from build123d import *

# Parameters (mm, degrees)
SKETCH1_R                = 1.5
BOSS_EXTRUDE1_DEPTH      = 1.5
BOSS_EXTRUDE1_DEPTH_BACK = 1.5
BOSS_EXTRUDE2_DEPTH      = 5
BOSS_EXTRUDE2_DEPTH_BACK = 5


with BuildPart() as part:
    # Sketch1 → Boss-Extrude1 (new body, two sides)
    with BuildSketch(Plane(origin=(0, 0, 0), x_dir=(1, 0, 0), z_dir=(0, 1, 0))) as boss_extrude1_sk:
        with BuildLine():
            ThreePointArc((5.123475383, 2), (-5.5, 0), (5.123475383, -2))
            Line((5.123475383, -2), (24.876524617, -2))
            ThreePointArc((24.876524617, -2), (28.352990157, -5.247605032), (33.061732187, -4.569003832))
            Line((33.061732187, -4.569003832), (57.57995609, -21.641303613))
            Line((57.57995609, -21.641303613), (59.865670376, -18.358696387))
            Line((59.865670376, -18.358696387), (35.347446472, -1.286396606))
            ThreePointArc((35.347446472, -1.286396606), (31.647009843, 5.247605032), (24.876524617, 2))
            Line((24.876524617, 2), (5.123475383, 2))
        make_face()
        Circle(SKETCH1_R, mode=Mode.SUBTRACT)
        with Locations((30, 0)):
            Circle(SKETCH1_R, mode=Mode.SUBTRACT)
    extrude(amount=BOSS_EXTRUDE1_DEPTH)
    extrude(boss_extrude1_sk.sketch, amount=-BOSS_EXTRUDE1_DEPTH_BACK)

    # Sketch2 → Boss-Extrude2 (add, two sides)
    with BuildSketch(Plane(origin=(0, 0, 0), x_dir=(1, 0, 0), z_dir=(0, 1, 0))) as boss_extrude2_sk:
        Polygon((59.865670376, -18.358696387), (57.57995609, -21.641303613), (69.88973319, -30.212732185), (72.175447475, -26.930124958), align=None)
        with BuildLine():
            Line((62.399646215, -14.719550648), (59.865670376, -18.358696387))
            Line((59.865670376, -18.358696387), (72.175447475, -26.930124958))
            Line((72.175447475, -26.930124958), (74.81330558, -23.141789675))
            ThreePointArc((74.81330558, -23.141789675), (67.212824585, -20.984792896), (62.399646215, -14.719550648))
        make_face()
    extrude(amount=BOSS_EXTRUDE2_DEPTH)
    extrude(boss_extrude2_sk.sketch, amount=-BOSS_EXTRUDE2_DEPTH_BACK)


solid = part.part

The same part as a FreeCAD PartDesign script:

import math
import FreeCAD as App
import Part
import Sketcher
from FreeCAD import Vector
Q = App.Units.Quantity

doc = App.newDocument("Part")
params = doc.addObject("Spreadsheet::Sheet", "Params")
for row, (alias, value) in enumerate([
    ("sketch1_diameter", "3 mm"),
    ("sketch1_radius", "5.5 mm"),
    ("sketch1_length", "4 mm"),
    ("pad1_length", "1.5 mm"),
    ("pad1_length2", "1.5 mm"),
    ("sketch2_length", "4 mm"),
    ("sketch2_length2", "15 mm"),
    ("pad2_length", "5 mm"),
    ("pad2_length2", "5 mm"),
], start=1):
    params.set(f"A{row}", alias)
    params.set(f"B{row}", "=" + value)
    params.setAlias(f"B{row}", alias)

body = doc.addObject("PartDesign::Body", "Body")

# Sketch on XZ plane
sketch1 = body.newObject("Sketcher::SketchObject", "Sketch")
sketch1.AttachmentSupport = (doc.getObject("XZ_Plane"), [""])
sketch1.MapMode = "FlatFace"
sketch1.addGeometry(Part.ArcOfCircle(Part.Circle(Vector(0, 0, 0), Vector(0, 0, 1), 5.5), math.radians(21), math.radians(339)), False)
sketch1.addGeometry(Part.LineSegment(Vector(5.1, 2, 0), Vector(24.9, 2, 0)), False)
sketch1.addGeometry(Part.ArcOfCircle(Part.Circle(Vector(30, 0, 0), Vector(0, 0, 1), 5.5), math.radians(56), math.radians(159)), False)
sketch1.addGeometry(Part.LineSegment(Vector(33.1, 4.6, 0), Vector(57.6, 21.6, 0)), False)
sketch1.addGeometry(Part.LineSegment(Vector(57.6, 21.6, 0), Vector(59.9, 18.4, 0)), False)
sketch1.addGeometry(Part.LineSegment(Vector(59.9, 18.4, 0), Vector(35.3, 1.3, 0)), False)
sketch1.addGeometry(Part.ArcOfCircle(Part.Circle(Vector(30, 0, 0), Vector(0, 0, 1), 5.5), math.radians(-159), math.radians(14)), False)
sketch1.addGeometry(Part.LineSegment(Vector(24.9, -2, 0), Vector(5.1, -2, 0)), False)
sketch1.addGeometry(Part.Circle(Vector(0, 0, 0), Vector(0, 0, 1), 1.5), False)
sketch1.addGeometry(Part.Circle(Vector(30, 0, 0), Vector(0, 0, 1), 1.5), False)
sketch1.addConstraint(Sketcher.Constraint("Coincident", 0, 1, 1, 1))
sketch1.addConstraint(Sketcher.Constraint("Coincident", 1, 2, 2, 2))
sketch1.addConstraint(Sketcher.Constraint("Coincident", 2, 1, 3, 1))
sketch1.addConstraint(Sketcher.Constraint("Coincident", 3, 2, 4, 1))
sketch1.addConstraint(Sketcher.Constraint("Coincident", 4, 2, 5, 1))
sketch1.addConstraint(Sketcher.Constraint("Coincident", 5, 2, 6, 2))
sketch1.addConstraint(Sketcher.Constraint("Coincident", 6, 1, 7, 1))
sketch1.addConstraint(Sketcher.Constraint("Coincident", 7, 2, 0, 2))
sketch1.addConstraint(Sketcher.Constraint("Horizontal", 1))
sketch1.addConstraint(Sketcher.Constraint("Horizontal", 7))
sketch1.addConstraint(Sketcher.Constraint("Coincident", 0, 3, -1, 1))
sketch1.addConstraint(Sketcher.Constraint("Coincident", 8, 3, -1, 1))
sketch1.addConstraint(Sketcher.Constraint("Coincident", 6, 3, 2, 3))
sketch1.addConstraint(Sketcher.Constraint("Coincident", 9, 3, 2, 3))
sketch1.addConstraint(Sketcher.Constraint("Equal", 0, 2))
sketch1.addConstraint(Sketcher.Constraint("Equal", 2, 6))
sketch1.addConstraint(Sketcher.Constraint("Equal", 8, 9))
sketch1.addConstraint(Sketcher.Constraint("Symmetric", 1, 2, 6, 1, -1))
sketch1.addConstraint(Sketcher.Constraint("Perpendicular", 3, 4))
sketch1.addConstraint(Sketcher.Constraint("Perpendicular", 4, 5))
sketch1.addConstraint(Sketcher.Constraint("Equal", 3, 5))
sketch1.addConstraint(Sketcher.Constraint("Diameter", 8, Q("3 mm")))
sketch1.addConstraint(Sketcher.Constraint("Radius", 0, Q("5.5 mm")))
sketch1.addConstraint(Sketcher.Constraint("Distance", 4, Q("4 mm")))
sketch1.addConstraint(Sketcher.Constraint("DistanceX", -1, 1, 2, 3, Q("30 mm")))
sketch1.addConstraint(Sketcher.Constraint("DistanceY", -1, 1, 0, 1, Q("2 mm")))
sketch1.addConstraint(Sketcher.Constraint("DistanceY", 2, 1, 3, 2, Q("17.0723 mm")))
sketch1.addConstraint(Sketcher.Constraint("DistanceX", -1, 1, 4, 2, Q("59.86567 mm")))
sketch1.setExpression("Constraints[21]", "Params.sketch1_diameter")
sketch1.setExpression("Constraints[22]", "Params.sketch1_radius")
sketch1.setExpression("Constraints[23]", "Params.sketch1_length")
pad1 = body.newObject("PartDesign::Pad", "Pad")
pad1.Profile = sketch1
pad1.Type = "TwoLengths"
pad1.setExpression("Length", "Params.pad1_length")
pad1.setExpression("Length2", "Params.pad1_length2")
pad1.Reversed = True

# Sketch on XZ plane
sketch2 = body.newObject("Sketcher::SketchObject", "Sketch001")
sketch2.AttachmentSupport = (doc.getObject("XZ_Plane"), [""])
sketch2.MapMode = "FlatFace"
sketch2.addGeometry(Part.LineSegment(Vector(59.9, 18.4, 0), Vector(57.6, 21.6, 0)), False)
sketch2.addGeometry(Part.LineSegment(Vector(57.6, 21.6, 0), Vector(69.9, 30.2, 0)), False)
sketch2.addGeometry(Part.LineSegment(Vector(69.9, 30.2, 0), Vector(72.2, 26.9, 0)), False)
sketch2.addGeometry(Part.LineSegment(Vector(72.2, 26.9, 0), Vector(74.8, 23.1, 0)), False)
sketch2.addGeometry(Part.ArcOfCircle(Part.Circle(Vector(74.3, 10.6, 0), Vector(0, 0, 1), 12.6), math.radians(88), math.radians(161)), False)
sketch2.addGeometry(Part.LineSegment(Vector(62.4, 14.7, 0), Vector(59.9, 18.4, 0)), False)
sketch2.addConstraint(Sketcher.Constraint("Coincident", 0, 2, 1, 1))
sketch2.addConstraint(Sketcher.Constraint("Coincident", 1, 2, 2, 1))
sketch2.addConstraint(Sketcher.Constraint("Coincident", 2, 2, 3, 1))
sketch2.addConstraint(Sketcher.Constraint("Coincident", 3, 2, 4, 1))
sketch2.addConstraint(Sketcher.Constraint("Coincident", 4, 2, 5, 1))
sketch2.addConstraint(Sketcher.Constraint("Coincident", 5, 2, 0, 1))
sketch2.addConstraint(Sketcher.Constraint("Perpendicular", 0, 1))
sketch2.addConstraint(Sketcher.Constraint("Perpendicular", 1, 2))
sketch2.addConstraint(Sketcher.Constraint("Parallel", 2, 3))
sketch2.addConstraint(Sketcher.Constraint("Parallel", 3, 5))
sketch2.addConstraint(Sketcher.Constraint("Equal", 0, 2))
sketch2.addConstraint(Sketcher.Constraint("Distance", 0, Q("4 mm")))
sketch2.addConstraint(Sketcher.Constraint("Distance", 1, Q("15 mm")))
sketch2.addConstraint(Sketcher.Constraint("Radius", 4, Q("12.573138 mm")))
sketch2.addConstraint(Sketcher.Constraint("DistanceX", 4, 3, 3, 2, Q("0.541401 mm")))
sketch2.addConstraint(Sketcher.Constraint("DistanceX", 4, 2, 2, 2, Q("9.775801 mm")))
sketch2.addConstraint(Sketcher.Constraint("Distance", 3, Q("4.616252 mm")))
sketch2.addConstraint(Sketcher.Constraint("DistanceY", -1, 1, 3, 2, Q("23.14179 mm")))
sketch2.addConstraint(Sketcher.Constraint("DistanceX", -1, 1, 5, 2, Q("59.86567 mm")))
sketch2.setExpression("Constraints[11]", "Params.sketch2_length")
sketch2.setExpression("Constraints[12]", "Params.sketch2_length2")
pad2 = body.newObject("PartDesign::Pad", "Pad001")
pad2.Profile = sketch2
pad2.Type = "TwoLengths"
pad2.setExpression("Length", "Params.pad2_length")
pad2.setExpression("Length2", "Params.pad2_length2")
pad2.Reversed = True

doc.recompute()
